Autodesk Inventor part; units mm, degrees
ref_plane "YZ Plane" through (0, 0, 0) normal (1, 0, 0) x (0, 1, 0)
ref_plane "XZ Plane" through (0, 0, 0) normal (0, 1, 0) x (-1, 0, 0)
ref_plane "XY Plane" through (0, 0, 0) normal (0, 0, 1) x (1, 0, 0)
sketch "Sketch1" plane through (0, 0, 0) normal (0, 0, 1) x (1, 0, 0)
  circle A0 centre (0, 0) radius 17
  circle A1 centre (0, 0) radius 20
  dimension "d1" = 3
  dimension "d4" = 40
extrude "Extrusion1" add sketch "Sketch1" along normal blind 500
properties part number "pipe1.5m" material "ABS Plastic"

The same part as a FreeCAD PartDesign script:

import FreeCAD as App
import Part
import Sketcher

V = App.Vector
Q = App.Units.Quantity

doc = App.newDocument("Part")
params = doc.addObject("Spreadsheet::Sheet", "Params")
for row, (alias, value) in enumerate([
    ("sketch1_diameter", "40 mm"),
    ("sketch1_diameter2", "34 mm"),
    ("pad1_length", "500 mm"),
], start=1):
    params.set(f"A{row}", alias)
    params.set(f"B{row}", "=" + value)
    params.setAlias(f"B{row}", alias)

body = doc.addObject("PartDesign::Body", "Body")

sketch1 = doc.addObject("Sketcher::SketchObject", "Sketch")
body.addObject(sketch1)
sketch1.AttachmentSupport = (doc.XY_Plane, [""])
sketch1.MapMode = "FlatFace"
sketch1.addGeometry(Part.Circle(V(0, 0, 0), V(0, 0, 1), 20), False)
sketch1.addGeometry(Part.Circle(V(0, 0, 0), V(0, 0, 1), 17), False)
sketch1.addConstraint(Sketcher.Constraint("Coincident", 0, 3, -1, 1))
sketch1.addConstraint(Sketcher.Constraint("Coincident", 1, 3, -1, 1))
sketch1.addConstraint(Sketcher.Constraint("Diameter", 0, Q("40 mm")))
sketch1.addConstraint(Sketcher.Constraint("Diameter", 1, Q("34 mm")))
sketch1.setExpression("Constraints[2]", "Params.sketch1_diameter")
sketch1.setExpression("Constraints[3]", "Params.sketch1_diameter2")
pad1 = doc.addObject("PartDesign::Pad", "Pad")
body.addObject(pad1)
pad1.Profile = sketch1
pad1.setExpression("Length", "Params.pad1_length")

doc.recompute()
